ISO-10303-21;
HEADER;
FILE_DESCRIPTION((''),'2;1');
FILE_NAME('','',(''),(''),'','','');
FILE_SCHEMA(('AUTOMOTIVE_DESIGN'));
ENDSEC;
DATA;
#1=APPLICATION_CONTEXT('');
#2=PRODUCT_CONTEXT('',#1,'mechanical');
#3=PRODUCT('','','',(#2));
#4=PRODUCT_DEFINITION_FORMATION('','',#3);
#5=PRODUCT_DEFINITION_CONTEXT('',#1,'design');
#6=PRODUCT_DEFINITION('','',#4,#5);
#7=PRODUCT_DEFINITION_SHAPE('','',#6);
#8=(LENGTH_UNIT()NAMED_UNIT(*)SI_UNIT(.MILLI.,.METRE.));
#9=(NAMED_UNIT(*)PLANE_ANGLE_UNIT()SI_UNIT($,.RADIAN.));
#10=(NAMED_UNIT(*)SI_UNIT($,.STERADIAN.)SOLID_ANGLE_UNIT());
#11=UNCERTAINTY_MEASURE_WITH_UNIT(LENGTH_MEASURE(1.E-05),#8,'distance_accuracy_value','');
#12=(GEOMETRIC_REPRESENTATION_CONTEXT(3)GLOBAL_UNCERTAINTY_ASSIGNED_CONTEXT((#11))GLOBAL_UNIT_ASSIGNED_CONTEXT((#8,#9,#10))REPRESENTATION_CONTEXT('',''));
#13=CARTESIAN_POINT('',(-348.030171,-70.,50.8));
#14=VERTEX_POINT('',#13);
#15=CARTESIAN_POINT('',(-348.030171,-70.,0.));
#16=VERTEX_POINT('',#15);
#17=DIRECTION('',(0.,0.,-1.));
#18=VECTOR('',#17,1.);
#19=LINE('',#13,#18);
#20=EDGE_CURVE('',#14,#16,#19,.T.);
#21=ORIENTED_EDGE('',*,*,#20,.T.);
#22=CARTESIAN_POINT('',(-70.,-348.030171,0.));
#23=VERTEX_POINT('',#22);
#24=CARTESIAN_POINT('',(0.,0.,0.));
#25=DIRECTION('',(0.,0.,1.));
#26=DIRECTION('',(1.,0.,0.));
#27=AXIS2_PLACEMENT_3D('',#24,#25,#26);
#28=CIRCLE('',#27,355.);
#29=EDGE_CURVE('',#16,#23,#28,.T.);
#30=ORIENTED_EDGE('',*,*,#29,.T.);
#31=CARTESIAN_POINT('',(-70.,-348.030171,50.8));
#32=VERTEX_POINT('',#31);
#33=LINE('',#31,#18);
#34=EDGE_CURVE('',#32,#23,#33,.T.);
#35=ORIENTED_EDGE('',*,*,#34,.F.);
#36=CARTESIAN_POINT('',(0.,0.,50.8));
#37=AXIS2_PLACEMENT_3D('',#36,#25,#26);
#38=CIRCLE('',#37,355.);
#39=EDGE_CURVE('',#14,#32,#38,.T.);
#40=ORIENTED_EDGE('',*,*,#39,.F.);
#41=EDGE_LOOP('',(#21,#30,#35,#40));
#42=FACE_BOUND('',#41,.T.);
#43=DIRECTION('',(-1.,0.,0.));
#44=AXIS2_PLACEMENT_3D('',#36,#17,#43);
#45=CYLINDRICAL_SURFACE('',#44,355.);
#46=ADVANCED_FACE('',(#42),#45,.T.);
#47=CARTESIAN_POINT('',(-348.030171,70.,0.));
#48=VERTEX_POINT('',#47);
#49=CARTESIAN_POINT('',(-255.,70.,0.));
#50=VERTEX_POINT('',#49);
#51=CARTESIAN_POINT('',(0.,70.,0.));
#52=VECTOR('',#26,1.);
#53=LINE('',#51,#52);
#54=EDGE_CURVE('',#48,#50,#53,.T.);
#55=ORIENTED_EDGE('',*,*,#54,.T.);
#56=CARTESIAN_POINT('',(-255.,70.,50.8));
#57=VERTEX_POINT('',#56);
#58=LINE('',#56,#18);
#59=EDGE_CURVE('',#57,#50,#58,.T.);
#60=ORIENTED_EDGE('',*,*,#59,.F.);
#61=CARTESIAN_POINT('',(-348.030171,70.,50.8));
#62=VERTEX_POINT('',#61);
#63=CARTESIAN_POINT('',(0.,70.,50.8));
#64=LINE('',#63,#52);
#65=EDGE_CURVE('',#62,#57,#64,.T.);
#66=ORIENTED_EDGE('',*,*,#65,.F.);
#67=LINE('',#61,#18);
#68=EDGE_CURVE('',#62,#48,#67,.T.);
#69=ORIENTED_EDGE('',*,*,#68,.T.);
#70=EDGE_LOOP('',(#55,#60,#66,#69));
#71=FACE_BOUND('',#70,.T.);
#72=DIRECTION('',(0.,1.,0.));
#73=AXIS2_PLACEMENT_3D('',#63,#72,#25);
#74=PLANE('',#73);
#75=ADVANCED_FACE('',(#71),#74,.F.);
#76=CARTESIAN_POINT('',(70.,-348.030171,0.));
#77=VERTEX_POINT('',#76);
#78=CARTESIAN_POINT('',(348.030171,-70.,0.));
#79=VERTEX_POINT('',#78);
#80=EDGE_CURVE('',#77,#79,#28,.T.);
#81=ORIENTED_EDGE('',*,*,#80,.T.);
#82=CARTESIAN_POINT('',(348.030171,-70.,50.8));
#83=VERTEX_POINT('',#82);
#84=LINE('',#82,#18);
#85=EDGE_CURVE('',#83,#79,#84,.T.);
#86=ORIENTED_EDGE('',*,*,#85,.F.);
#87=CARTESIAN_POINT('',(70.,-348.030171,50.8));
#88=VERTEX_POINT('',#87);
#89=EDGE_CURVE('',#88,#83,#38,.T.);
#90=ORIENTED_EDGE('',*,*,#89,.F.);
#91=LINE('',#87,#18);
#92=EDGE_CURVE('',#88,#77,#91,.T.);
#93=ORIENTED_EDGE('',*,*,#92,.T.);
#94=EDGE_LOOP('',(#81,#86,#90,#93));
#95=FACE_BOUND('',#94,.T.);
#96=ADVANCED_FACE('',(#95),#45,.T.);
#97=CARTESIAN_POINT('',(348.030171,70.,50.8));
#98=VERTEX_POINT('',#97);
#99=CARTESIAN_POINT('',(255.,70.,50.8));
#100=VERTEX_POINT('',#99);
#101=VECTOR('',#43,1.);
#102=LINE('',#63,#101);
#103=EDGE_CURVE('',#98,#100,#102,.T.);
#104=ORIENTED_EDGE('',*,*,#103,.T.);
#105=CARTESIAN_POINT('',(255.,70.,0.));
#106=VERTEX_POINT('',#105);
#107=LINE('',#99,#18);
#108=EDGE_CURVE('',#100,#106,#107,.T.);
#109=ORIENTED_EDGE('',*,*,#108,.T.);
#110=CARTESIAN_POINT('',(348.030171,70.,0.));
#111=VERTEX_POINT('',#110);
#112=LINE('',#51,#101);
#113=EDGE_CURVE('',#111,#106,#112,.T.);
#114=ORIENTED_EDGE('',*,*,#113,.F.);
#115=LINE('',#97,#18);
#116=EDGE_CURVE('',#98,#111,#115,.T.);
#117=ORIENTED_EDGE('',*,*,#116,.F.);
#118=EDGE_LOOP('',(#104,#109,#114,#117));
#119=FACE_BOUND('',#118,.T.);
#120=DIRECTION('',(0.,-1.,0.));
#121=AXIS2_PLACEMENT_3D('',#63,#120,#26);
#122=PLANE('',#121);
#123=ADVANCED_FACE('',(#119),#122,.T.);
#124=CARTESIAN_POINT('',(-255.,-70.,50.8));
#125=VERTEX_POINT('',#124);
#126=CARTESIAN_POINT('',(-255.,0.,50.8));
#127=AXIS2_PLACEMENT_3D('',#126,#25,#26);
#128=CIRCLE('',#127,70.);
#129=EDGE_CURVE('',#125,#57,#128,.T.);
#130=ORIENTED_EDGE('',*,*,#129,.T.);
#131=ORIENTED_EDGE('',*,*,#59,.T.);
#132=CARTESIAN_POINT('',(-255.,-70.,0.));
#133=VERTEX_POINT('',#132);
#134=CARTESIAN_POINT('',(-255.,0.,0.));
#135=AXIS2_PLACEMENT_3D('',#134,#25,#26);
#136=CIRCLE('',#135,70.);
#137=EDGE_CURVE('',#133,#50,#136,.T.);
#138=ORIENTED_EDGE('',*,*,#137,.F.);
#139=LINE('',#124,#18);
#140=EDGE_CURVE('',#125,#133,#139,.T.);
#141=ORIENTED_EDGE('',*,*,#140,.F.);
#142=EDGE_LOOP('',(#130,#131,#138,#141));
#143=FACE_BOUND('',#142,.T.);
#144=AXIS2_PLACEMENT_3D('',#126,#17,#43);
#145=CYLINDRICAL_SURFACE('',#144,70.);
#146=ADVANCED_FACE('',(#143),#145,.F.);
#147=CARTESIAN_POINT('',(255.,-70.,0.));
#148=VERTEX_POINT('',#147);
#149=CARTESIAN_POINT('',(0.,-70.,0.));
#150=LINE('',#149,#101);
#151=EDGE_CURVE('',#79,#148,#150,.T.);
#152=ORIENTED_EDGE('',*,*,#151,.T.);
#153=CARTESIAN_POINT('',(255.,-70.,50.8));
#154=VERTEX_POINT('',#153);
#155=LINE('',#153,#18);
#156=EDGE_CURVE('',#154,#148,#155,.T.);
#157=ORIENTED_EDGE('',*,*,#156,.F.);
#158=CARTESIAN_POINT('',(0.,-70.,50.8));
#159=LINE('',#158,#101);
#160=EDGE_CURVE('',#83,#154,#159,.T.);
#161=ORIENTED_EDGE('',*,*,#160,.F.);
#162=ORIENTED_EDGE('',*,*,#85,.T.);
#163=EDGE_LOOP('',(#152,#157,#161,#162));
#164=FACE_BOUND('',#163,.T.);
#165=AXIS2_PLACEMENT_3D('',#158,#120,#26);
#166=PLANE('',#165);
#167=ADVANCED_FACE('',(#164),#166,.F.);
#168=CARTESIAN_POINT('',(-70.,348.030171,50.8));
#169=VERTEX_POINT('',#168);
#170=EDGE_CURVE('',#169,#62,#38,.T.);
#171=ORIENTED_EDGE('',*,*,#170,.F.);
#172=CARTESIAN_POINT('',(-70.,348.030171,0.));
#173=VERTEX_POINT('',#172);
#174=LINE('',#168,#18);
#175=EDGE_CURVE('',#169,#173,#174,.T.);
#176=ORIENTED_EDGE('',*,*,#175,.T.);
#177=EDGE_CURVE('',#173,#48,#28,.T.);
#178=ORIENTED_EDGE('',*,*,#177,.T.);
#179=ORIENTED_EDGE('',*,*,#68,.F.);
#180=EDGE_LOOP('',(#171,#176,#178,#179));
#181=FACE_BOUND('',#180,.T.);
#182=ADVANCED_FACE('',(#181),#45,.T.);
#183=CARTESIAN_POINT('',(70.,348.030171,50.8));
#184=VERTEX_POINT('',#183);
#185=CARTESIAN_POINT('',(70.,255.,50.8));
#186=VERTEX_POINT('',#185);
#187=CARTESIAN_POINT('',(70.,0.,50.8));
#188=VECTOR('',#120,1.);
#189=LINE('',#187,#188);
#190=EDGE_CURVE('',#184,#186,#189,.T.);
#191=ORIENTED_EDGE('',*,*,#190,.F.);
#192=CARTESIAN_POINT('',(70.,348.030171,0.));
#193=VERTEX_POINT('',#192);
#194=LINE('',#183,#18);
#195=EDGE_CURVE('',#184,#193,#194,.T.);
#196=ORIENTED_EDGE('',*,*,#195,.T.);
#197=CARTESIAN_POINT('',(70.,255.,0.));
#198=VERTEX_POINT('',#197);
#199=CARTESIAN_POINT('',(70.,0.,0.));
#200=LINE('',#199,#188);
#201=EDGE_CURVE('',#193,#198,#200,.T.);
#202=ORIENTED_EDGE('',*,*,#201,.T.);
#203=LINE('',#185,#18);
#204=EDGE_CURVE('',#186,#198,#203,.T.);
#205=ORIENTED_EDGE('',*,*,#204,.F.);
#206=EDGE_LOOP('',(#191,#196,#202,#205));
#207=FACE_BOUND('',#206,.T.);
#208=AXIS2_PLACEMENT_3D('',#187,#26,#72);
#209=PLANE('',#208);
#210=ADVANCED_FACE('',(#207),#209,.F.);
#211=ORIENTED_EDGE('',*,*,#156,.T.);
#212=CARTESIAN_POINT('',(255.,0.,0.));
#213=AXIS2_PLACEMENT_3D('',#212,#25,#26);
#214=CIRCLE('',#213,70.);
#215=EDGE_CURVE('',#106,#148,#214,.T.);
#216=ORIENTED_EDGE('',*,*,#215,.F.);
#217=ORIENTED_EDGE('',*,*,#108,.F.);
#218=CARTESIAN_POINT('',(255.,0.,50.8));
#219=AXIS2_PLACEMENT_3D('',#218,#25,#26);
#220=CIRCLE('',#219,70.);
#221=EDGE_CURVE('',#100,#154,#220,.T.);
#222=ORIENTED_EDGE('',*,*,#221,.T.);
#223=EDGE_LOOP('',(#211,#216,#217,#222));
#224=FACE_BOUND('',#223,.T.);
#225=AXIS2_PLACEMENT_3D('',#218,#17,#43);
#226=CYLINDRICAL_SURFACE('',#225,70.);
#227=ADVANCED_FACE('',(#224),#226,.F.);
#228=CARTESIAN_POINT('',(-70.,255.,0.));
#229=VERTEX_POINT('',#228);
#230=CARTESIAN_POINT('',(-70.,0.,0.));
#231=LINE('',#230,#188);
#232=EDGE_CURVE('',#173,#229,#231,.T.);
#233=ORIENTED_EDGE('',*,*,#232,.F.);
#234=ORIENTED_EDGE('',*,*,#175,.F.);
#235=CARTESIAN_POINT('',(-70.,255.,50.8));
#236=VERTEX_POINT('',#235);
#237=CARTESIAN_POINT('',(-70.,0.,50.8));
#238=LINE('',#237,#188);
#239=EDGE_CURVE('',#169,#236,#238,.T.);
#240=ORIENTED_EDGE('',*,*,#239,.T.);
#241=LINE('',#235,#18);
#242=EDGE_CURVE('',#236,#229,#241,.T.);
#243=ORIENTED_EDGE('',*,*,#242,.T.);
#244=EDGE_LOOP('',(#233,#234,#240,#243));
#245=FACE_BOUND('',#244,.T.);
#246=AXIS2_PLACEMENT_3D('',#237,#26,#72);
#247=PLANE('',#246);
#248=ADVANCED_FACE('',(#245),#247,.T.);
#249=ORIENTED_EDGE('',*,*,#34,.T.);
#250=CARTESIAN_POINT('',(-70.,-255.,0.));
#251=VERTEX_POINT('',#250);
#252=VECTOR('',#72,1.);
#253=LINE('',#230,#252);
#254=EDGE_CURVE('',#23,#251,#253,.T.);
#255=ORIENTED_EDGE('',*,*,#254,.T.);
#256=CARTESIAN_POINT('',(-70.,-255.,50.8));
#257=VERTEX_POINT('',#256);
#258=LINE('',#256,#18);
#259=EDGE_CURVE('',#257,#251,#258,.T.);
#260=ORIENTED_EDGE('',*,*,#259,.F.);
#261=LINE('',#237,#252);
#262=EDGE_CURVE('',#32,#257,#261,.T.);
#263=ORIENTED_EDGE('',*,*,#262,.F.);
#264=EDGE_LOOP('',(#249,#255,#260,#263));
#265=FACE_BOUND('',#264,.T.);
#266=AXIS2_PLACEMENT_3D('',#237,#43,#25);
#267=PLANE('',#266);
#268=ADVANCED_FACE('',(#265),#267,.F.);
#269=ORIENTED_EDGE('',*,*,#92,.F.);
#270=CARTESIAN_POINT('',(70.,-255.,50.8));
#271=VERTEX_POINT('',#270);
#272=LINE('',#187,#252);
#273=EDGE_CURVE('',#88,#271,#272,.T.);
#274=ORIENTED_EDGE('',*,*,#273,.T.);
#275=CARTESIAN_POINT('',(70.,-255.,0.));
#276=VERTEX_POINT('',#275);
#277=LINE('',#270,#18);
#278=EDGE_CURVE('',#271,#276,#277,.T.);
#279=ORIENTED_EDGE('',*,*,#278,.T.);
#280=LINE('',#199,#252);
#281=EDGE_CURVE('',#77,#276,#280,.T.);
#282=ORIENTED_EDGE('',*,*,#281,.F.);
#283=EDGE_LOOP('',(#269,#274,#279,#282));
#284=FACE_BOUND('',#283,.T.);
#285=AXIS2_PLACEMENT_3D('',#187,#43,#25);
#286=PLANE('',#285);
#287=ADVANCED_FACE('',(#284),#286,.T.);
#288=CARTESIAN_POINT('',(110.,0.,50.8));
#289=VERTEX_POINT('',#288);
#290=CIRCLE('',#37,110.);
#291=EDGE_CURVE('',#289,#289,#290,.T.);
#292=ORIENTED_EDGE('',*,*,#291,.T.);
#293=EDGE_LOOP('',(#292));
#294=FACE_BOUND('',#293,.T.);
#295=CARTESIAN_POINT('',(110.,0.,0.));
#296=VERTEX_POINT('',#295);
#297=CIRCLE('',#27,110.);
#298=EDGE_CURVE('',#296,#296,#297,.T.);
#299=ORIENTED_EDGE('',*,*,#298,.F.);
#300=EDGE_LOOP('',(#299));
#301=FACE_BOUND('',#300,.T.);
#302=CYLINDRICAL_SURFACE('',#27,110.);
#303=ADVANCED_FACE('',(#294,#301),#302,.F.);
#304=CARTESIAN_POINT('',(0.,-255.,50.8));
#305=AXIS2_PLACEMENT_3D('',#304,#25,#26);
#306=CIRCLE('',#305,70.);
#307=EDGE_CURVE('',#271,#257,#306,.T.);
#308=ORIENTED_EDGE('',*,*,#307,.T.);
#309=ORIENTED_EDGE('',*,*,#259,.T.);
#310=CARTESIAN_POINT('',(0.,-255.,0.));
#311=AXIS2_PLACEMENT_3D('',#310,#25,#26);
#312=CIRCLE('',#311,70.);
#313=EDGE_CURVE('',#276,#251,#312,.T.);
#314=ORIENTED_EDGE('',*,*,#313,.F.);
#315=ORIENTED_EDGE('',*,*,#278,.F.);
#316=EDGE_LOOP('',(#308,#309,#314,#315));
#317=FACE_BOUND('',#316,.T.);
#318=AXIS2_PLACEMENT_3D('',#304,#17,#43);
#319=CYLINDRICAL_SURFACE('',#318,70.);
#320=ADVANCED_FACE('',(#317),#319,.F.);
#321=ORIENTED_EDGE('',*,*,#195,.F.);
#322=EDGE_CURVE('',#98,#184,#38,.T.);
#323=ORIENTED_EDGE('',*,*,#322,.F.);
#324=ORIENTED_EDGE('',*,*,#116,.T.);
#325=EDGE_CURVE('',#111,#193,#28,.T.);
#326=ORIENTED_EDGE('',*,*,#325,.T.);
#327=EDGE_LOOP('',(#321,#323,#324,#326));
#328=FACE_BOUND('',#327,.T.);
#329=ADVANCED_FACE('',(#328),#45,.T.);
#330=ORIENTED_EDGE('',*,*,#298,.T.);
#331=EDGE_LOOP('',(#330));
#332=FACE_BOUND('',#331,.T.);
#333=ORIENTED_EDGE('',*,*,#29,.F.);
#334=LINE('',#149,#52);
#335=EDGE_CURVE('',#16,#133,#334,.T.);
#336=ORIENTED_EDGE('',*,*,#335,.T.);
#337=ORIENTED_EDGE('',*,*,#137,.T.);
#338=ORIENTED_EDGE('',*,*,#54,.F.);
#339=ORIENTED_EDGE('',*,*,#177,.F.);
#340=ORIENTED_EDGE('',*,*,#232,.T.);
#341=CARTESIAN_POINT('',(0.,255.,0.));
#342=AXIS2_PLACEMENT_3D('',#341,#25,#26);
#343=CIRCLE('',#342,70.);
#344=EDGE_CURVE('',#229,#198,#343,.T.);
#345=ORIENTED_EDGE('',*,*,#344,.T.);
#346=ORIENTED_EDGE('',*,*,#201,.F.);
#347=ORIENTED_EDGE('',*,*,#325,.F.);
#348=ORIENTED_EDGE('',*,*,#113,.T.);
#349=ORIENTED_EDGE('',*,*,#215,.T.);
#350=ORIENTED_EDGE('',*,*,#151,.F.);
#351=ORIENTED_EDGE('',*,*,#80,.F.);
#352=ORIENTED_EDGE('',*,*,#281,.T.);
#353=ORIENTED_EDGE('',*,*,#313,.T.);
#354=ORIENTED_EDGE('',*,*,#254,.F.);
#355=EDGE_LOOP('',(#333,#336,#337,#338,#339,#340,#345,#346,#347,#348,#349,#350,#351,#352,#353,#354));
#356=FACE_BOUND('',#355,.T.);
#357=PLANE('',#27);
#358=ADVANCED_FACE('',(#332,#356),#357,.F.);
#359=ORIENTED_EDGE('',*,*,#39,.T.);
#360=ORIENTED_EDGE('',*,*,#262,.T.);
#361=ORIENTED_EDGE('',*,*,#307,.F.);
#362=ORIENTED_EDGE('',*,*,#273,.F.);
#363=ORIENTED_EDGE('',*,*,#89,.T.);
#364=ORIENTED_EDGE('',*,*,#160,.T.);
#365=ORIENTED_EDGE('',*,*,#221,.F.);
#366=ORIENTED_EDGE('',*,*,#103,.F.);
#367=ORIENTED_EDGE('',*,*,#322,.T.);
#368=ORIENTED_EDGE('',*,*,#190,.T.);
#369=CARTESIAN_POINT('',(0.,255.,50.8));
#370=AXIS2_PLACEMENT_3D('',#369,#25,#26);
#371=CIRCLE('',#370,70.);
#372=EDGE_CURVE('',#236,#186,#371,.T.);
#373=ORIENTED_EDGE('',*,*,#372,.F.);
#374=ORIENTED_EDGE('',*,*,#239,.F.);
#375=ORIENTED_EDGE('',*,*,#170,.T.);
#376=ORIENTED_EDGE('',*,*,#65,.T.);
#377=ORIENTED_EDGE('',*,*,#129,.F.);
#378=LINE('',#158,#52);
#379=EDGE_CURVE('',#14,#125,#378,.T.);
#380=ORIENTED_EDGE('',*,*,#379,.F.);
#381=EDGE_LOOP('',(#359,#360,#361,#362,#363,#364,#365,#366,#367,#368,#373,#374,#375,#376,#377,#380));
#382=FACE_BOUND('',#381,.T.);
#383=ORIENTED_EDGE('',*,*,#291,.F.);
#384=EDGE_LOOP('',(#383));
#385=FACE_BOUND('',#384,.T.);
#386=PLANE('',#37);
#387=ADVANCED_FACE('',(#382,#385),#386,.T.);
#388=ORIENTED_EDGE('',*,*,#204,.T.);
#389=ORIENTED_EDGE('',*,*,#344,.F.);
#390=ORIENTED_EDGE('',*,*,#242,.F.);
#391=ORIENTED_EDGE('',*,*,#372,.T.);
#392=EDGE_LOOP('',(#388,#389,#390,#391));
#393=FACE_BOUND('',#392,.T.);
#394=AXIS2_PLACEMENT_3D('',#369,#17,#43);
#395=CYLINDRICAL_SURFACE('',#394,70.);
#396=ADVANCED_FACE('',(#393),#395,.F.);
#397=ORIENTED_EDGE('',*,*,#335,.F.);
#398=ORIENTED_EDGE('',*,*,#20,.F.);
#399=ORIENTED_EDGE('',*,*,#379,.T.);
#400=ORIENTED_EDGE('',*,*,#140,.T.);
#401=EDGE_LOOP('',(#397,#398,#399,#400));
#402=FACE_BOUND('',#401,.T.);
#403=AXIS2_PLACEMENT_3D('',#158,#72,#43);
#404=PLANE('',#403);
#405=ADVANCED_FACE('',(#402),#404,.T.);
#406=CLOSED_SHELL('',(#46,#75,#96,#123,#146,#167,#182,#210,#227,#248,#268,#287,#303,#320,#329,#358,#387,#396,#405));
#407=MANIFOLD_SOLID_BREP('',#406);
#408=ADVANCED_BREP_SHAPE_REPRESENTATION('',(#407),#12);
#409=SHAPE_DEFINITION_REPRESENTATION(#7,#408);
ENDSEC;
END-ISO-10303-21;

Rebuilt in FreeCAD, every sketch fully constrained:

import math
import FreeCAD as App
import Part
import Sketcher
from FreeCAD import Vector
Q = App.Units.Quantity

doc = App.newDocument("Part")
params = doc.addObject("Spreadsheet::Sheet", "Params")
for row, (alias, value) in enumerate([
    ("sketch1_radius", "355 mm"),
    ("sketch1_radius2", "70 mm"),
    ("pad1_length", "50.8 mm"),
    ("sketch2_diameter", "220 mm"),
], start=1):
    params.set(f"A{row}", alias)
    params.set(f"B{row}", "=" + value)
    params.setAlias(f"B{row}", alias)

body = doc.addObject("PartDesign::Body", "Body")

# Sketch on XY plane
sketch1 = doc.addObject("Sketcher::SketchObject", "Sketch")
body.addObject(sketch1)
sketch1.AttachmentSupport = (doc.XY_Plane, [""])
sketch1.MapMode = "FlatFace"
sketch1.addGeometry(Part.ArcOfCircle(Part.Circle(Vector(0, 0, 0), Vector(0, 0, 1), 355), math.radians(11.372282), math.radians(78.627718)), False)
sketch1.addGeometry(Part.LineSegment(Vector(70, 348.030171, 0), Vector(70, 255, 0)), False)
sketch1.addGeometry(Part.ArcOfCircle(Part.Circle(Vector(0, 255, 0), Vector(0, 0, 1), 70), math.radians(180), math.radians(360)), False)
sketch1.addGeometry(Part.LineSegment(Vector(-70, 255, 0), Vector(-70, 348.030171, 0)), False)
sketch1.addGeometry(Part.ArcOfCircle(Part.Circle(Vector(0, 0, 0), Vector(0, 0, 1), 355), math.radians(101.372282), math.radians(168.627718)), False)
sketch1.addGeometry(Part.LineSegment(Vector(-348.030171, 70, 0), Vector(-255, 70, 0)), False)
sketch1.addGeometry(Part.ArcOfCircle(Part.Circle(Vector(-255, 0, 0), Vector(0, 0, 1), 70), math.radians(-90), math.radians(90)), False)
sketch1.addGeometry(Part.LineSegment(Vector(-255, -70, 0), Vector(-348.030171, -70, 0)), False)
sketch1.addGeometry(Part.ArcOfCircle(Part.Circle(Vector(0, 0, 0), Vector(0, 0, 1), 355), math.radians(-168.627718), math.radians(-101.372282)), False)
sketch1.addGeometry(Part.LineSegment(Vector(-70, -348.030171, 0), Vector(-70, -255, 0)), False)
sketch1.addGeometry(Part.ArcOfCircle(Part.Circle(Vector(0, -255, 0), Vector(0, 0, 1), 70), math.radians(0), math.radians(180)), False)
sketch1.addGeometry(Part.LineSegment(Vector(70, -255, 0), Vector(70, -348.030171, 0)), False)
sketch1.addGeometry(Part.ArcOfCircle(Part.Circle(Vector(0, 0, 0), Vector(0, 0, 1), 355), math.radians(-78.627718), math.radians(-11.372282)), False)
sketch1.addGeometry(Part.LineSegment(Vector(348.030171, -70, 0), Vector(255, -70, 0)), False)
sketch1.addGeometry(Part.ArcOfCircle(Part.Circle(Vector(255, 0, 0), Vector(0, 0, 1), 70), math.radians(90), math.radians(270)), False)
sketch1.addGeometry(Part.LineSegment(Vector(255, 70, 0), Vector(348.030171, 70, 0)), False)
sketch1.addConstraint(Sketcher.Constraint("Coincident", 0, 2, 1, 1))
sketch1.addConstraint(Sketcher.Constraint("Tangent", 1, 2, 2, 2))
sketch1.addConstraint(Sketcher.Constraint("Tangent", 2, 1, 3, 1))
sketch1.addConstraint(Sketcher.Constraint("Coincident", 3, 2, 4, 1))
sketch1.addConstraint(Sketcher.Constraint("Coincident", 4, 2, 5, 1))
sketch1.addConstraint(Sketcher.Constraint("Tangent", 5, 2, 6, 2))
sketch1.addConstraint(Sketcher.Constraint("Tangent", 6, 1, 7, 1))
sketch1.addConstraint(Sketcher.Constraint("Coincident", 7, 2, 8, 1))
sketch1.addConstraint(Sketcher.Constraint("Coincident", 8, 2, 9, 1))
sketch1.addConstraint(Sketcher.Constraint("Tangent", 9, 2, 10, 2))
sketch1.addConstraint(Sketcher.Constraint("Tangent", 10, 1, 11, 1))
sketch1.addConstraint(Sketcher.Constraint("Coincident", 11, 2, 12, 1))
sketch1.addConstraint(Sketcher.Constraint("Coincident", 12, 2, 13, 1))
sketch1.addConstraint(Sketcher.Constraint("Tangent", 13, 2, 14, 2))
sketch1.addConstraint(Sketcher.Constraint("Tangent", 14, 1, 15, 1))
sketch1.addConstraint(Sketcher.Constraint("Coincident", 15, 2, 0, 1))
sketch1.addConstraint(Sketcher.Constraint("Vertical", 1))
sketch1.addConstraint(Sketcher.Constraint("Vertical", 3))
sketch1.addConstraint(Sketcher.Constraint("Horizontal", 5))
sketch1.addConstraint(Sketcher.Constraint("Horizontal", 7))
sketch1.addConstraint(Sketcher.Constraint("Vertical", 9))
sketch1.addConstraint(Sketcher.Constraint("Vertical", 11))
sketch1.addConstraint(Sketcher.Constraint("Horizontal", 13))
sketch1.addConstraint(Sketcher.Constraint("Horizontal", 15))
sketch1.addConstraint(Sketcher.Constraint("Coincident", 0, 3, -1, 1))
sketch1.addConstraint(Sketcher.Constraint("Coincident", 4, 3, -1, 1))
sketch1.addConstraint(Sketcher.Constraint("Coincident", 8, 3, -1, 1))
sketch1.addConstraint(Sketcher.Constraint("Coincident", 12, 3, -1, 1))
sketch1.addConstraint(Sketcher.Constraint("Equal", 0, 4))
sketch1.addConstraint(Sketcher.Constraint("Equal", 2, 6))
sketch1.addConstraint(Sketcher.Constraint("Equal", 4, 8))
sketch1.addConstraint(Sketcher.Constraint("Equal", 6, 10))
sketch1.addConstraint(Sketcher.Constraint("Equal", 8, 12))
sketch1.addConstraint(Sketcher.Constraint("Equal", 10, 14))
sketch1.addConstraint(Sketcher.Constraint("Symmetric", 2, 3, 10, 3, -1, 1))
sketch1.addConstraint(Sketcher.Constraint("Symmetric", 6, 3, 14, 3, -1, 1))
sketch1.addConstraint(Sketcher.Constraint("PointOnObject", 2, 3, -2))
sketch1.addConstraint(Sketcher.Constraint("PointOnObject", 6, 3, -1))
sketch1.addConstraint(Sketcher.Constraint("Equal", 15, 1))
sketch1.addConstraint(Sketcher.Constraint("Radius", 0, Q("355 mm")))
sketch1.addConstraint(Sketcher.Constraint("Radius", 2, Q("70 mm")))
sketch1.addConstraint(Sketcher.Constraint("DistanceY", -1, 1, 2, 3, Q("255 mm")))
sketch1.setExpression("Constraints[39]", "Params.sketch1_radius")
sketch1.setExpression("Constraints[40]", "Params.sketch1_radius2")
pad1 = doc.addObject("PartDesign::Pad", "Pad")
body.addObject(pad1)
pad1.Profile = sketch1
pad1.setExpression("Length", "Params.pad1_length")

# Sketch on XY plane
sketch2 = doc.addObject("Sketcher::SketchObject", "Sketch001")
body.addObject(sketch2)
sketch2.AttachmentSupport = (doc.XY_Plane, [""])
sketch2.MapMode = "FlatFace"
sketch2.AttachmentOffset = App.Placement(Vector(0, 0, 50.8), App.Rotation())
sketch2.addGeometry(Part.Circle(Vector(0, 0, 0), Vector(0, 0, 1), 110), False)
sketch2.addConstraint(Sketcher.Constraint("Coincident", 0, 3, -1, 1))
sketch2.addConstraint(Sketcher.Constraint("Diameter", 0, Q("220 mm")))
sketch2.setExpression("Constraints[1]", "Params.sketch2_diameter")
pocket1 = doc.addObject("PartDesign::Pocket", "Pocket")
body.addObject(pocket1)
pocket1.Profile = sketch2
pocket1.Type = "ThroughAll"

doc.recompute()
